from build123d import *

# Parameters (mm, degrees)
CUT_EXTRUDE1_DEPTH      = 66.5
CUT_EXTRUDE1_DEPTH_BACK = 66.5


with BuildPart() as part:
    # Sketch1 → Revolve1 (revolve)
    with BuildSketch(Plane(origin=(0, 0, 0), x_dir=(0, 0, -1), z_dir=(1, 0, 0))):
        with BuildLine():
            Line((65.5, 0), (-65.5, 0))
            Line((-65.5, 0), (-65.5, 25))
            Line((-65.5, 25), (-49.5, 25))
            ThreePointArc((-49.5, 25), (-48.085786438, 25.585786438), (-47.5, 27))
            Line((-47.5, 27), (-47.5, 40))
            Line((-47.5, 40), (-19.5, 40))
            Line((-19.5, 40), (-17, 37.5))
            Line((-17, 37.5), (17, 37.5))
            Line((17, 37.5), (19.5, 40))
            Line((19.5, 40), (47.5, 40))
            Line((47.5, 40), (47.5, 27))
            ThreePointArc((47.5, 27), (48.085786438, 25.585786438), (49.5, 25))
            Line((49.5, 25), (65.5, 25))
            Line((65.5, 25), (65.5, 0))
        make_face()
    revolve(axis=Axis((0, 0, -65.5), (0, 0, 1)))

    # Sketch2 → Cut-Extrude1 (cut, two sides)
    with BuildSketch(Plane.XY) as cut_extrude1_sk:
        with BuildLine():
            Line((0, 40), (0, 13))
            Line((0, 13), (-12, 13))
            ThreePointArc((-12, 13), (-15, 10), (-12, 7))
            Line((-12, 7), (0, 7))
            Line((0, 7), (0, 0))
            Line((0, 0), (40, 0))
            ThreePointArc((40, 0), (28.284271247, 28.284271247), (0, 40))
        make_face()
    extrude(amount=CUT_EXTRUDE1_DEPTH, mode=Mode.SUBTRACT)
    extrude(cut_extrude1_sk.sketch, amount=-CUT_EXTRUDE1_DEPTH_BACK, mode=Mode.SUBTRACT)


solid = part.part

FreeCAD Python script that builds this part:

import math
import FreeCAD as App
import Part
import Sketcher

V = App.Vector
Q = App.Units.Quantity

doc = App.newDocument("Part")
body = doc.addObject("PartDesign::Body", "Body")

# Sketch on YZ plane
sketch1 = body.newObject("Sketcher::SketchObject", "Sketch")
sketch1.AttachmentSupport = (doc.getObject("YZ_Plane"), [""])
sketch1.MapMode = "FlatFace"
sketch1.addGeometry([
    Part.LineSegment(V(0, 65.5, 0), V(0, -65.5, 0)),  # 0
    Part.LineSegment(V(0, -65.5, 0), V(25, -65.5, 0)),  # 1
    Part.LineSegment(V(25, -65.5, 0), V(25, -49.5, 0)),  # 2
    Part.ArcOfCircle(Part.Circle(V(27, -49.5, 0), V(0, 0, 1), 2), math.radians(90), math.radians(180)),  # 3
    Part.LineSegment(V(27, -47.5, 0), V(40, -47.5, 0)),  # 4
    Part.LineSegment(V(40, -47.5, 0), V(40, -19.5, 0)),  # 5
    Part.LineSegment(V(40, -19.5, 0), V(37.5, -17, 0)),  # 6
    Part.LineSegment(V(37.5, -17, 0), V(37.5, 17, 0)),  # 7
    Part.LineSegment(V(37.5, 17, 0), V(40, 19.5, 0)),  # 8
    Part.LineSegment(V(40, 19.5, 0), V(40, 47.5, 0)),  # 9
    Part.LineSegment(V(40, 47.5, 0), V(27, 47.5, 0)),  # 10
    Part.ArcOfCircle(Part.Circle(V(27, 49.5, 0), V(0, 0, 1), 2), math.radians(-180), math.radians(-90)),  # 11
    Part.LineSegment(V(25, 49.5, 0), V(25, 65.5, 0)),  # 12
    Part.LineSegment(V(25, 65.5, 0), V(0, 65.5, 0)),  # 13
], False)
sketch1.addConstraint([
    Sketcher.Constraint("Coincident", 0, 2, 1, 1),
    Sketcher.Constraint("Coincident", 1, 2, 2, 1),
    Sketcher.Constraint("Tangent", 2, 2, 3, 2),
    Sketcher.Constraint("Tangent", 3, 1, 4, 1),
    Sketcher.Constraint("Coincident", 4, 2, 5, 1),
    Sketcher.Constraint("Coincident", 5, 2, 6, 1),
    Sketcher.Constraint("Coincident", 6, 2, 7, 1),
    Sketcher.Constraint("Coincident", 7, 2, 8, 1),
    Sketcher.Constraint("Coincident", 8, 2, 9, 1),
    Sketcher.Constraint("Coincident", 9, 2, 10, 1),
    Sketcher.Constraint("Tangent", 10, 2, 11, 2),
    Sketcher.Constraint("Tangent", 11, 1, 12, 1),
    Sketcher.Constraint("Coincident", 12, 2, 13, 1),
    Sketcher.Constraint("Coincident", 13, 2, 0, 1),
    Sketcher.Constraint("Vertical", 0),
    Sketcher.Constraint("Horizontal", 1),
    Sketcher.Constraint("Vertical", 2),
    Sketcher.Constraint("Horizontal", 4),
    Sketcher.Constraint("Vertical", 5),
    Sketcher.Constraint("Vertical", 7),
    Sketcher.Constraint("Vertical", 9),
    Sketcher.Constraint("Horizontal", 10),
    Sketcher.Constraint("Vertical", 12),
    Sketcher.Constraint("Horizontal", 13),
    Sketcher.Constraint("Equal", 3, 11),
    Sketcher.Constraint("Symmetric", 0, 2, 13, 2, -1, 1),
    Sketcher.Constraint("Symmetric", 3, 3, 11, 3, -1),
    Sketcher.Constraint("Symmetric", 5, 2, 8, 2, -1),
    Sketcher.Constraint("Perpendicular", 6, 8),
    Sketcher.Constraint("Equal", 6, 8),
    Sketcher.Constraint("Radius", 3, Q("2 mm")),
    Sketcher.Constraint("DistanceX", 1, 1, 1, 2, Q("25 mm")),
    Sketcher.Constraint("DistanceX", 4, 1, 4, 2, Q("13 mm")),
    Sketcher.Constraint("DistanceY", 0, 2, 0, 1, Q("131 mm")),
    Sketcher.Constraint("DistanceY", 2, 1, 2, 2, Q("16 mm")),
    Sketcher.Constraint("DistanceY", 5, 1, 5, 2, Q("28 mm")),
    Sketcher.Constraint("DistanceY", 7, 1, 7, 2, Q("34 mm")),
])
revolution = body.newObject("PartDesign::Revolution", "Revolution")
revolution.Profile = sketch1
revolution.ReferenceAxis = (sketch1, ["V_Axis"])
revolution.Angle = 360

# Sketch on XY plane
sketch2 = body.newObject("Sketcher::SketchObject", "Sketch001")
sketch2.AttachmentSupport = (doc.getObject("XY_Plane"), [""])
sketch2.MapMode = "FlatFace"
sketch2.addGeometry([
    Part.LineSegment(V(0, 40, 0), V(0, 13, 0)),  # 0
    Part.LineSegment(V(0, 13, 0), V(-12, 13, 0)),  # 1
    Part.ArcOfCircle(Part.Circle(V(-12, 10, 0), V(0, 0, 1), 3), math.radians(90), math.radians(270)),  # 2
    Part.LineSegment(V(-12, 7, 0), V(0, 7, 0)),  # 3
    Part.LineSegment(V(0, 7, 0), V(0, 0, 0)),  # 4
    Part.LineSegment(V(0, 0, 0), V(40, 0, 0)),  # 5
    Part.ArcOfCircle(Part.Circle(V(0, 0, 0), V(0, 0, 1), 40), math.radians(0), math.radians(90)),  # 6
], False)
sketch2.addConstraint([
    Sketcher.Constraint("Coincident", 0, 2, 1, 1),
    Sketcher.Constraint("Tangent", 1, 2, 2, 1),
    Sketcher.Constraint("Tangent", 2, 2, 3, 1),
    Sketcher.Constraint("Coincident", 3, 2, 4, 1),
    Sketcher.Constraint("Coincident", 4, 2, 5, 1),
    Sketcher.Constraint("Coincident", 5, 2, 6, 1),
    Sketcher.Constraint("Coincident", 6, 2, 0, 1),
    Sketcher.Constraint("Vertical", 0),
    Sketcher.Constraint("Horizontal", 1),
    Sketcher.Constraint("Horizontal", 3),
    Sketcher.Constraint("Vertical", 4),
    Sketcher.Constraint("Horizontal", 5),
    Sketcher.Constraint("Coincident", 6, 3, -1, 1),
    Sketcher.Constraint("Coincident", 4, 2, -1, 1),
    Sketcher.Constraint("PointOnObject", 0, 2, -2),
    Sketcher.Constraint("Radius", 2, Q("3 mm")),
    Sketcher.Constraint("Radius", 6, Q("40 mm")),
    Sketcher.Constraint("DistanceX", 1, 2, 1, 1, Q("12 mm")),
    Sketcher.Constraint("DistanceY", 0, 2, 0, 1, Q("27 mm")),
])
pocket1 = body.newObject("PartDesign::Pocket", "Pocket")
pocket1.Profile = sketch2
pocket1.Type = "ThroughAll"
pocket1.Midplane = True

doc.recompute()
